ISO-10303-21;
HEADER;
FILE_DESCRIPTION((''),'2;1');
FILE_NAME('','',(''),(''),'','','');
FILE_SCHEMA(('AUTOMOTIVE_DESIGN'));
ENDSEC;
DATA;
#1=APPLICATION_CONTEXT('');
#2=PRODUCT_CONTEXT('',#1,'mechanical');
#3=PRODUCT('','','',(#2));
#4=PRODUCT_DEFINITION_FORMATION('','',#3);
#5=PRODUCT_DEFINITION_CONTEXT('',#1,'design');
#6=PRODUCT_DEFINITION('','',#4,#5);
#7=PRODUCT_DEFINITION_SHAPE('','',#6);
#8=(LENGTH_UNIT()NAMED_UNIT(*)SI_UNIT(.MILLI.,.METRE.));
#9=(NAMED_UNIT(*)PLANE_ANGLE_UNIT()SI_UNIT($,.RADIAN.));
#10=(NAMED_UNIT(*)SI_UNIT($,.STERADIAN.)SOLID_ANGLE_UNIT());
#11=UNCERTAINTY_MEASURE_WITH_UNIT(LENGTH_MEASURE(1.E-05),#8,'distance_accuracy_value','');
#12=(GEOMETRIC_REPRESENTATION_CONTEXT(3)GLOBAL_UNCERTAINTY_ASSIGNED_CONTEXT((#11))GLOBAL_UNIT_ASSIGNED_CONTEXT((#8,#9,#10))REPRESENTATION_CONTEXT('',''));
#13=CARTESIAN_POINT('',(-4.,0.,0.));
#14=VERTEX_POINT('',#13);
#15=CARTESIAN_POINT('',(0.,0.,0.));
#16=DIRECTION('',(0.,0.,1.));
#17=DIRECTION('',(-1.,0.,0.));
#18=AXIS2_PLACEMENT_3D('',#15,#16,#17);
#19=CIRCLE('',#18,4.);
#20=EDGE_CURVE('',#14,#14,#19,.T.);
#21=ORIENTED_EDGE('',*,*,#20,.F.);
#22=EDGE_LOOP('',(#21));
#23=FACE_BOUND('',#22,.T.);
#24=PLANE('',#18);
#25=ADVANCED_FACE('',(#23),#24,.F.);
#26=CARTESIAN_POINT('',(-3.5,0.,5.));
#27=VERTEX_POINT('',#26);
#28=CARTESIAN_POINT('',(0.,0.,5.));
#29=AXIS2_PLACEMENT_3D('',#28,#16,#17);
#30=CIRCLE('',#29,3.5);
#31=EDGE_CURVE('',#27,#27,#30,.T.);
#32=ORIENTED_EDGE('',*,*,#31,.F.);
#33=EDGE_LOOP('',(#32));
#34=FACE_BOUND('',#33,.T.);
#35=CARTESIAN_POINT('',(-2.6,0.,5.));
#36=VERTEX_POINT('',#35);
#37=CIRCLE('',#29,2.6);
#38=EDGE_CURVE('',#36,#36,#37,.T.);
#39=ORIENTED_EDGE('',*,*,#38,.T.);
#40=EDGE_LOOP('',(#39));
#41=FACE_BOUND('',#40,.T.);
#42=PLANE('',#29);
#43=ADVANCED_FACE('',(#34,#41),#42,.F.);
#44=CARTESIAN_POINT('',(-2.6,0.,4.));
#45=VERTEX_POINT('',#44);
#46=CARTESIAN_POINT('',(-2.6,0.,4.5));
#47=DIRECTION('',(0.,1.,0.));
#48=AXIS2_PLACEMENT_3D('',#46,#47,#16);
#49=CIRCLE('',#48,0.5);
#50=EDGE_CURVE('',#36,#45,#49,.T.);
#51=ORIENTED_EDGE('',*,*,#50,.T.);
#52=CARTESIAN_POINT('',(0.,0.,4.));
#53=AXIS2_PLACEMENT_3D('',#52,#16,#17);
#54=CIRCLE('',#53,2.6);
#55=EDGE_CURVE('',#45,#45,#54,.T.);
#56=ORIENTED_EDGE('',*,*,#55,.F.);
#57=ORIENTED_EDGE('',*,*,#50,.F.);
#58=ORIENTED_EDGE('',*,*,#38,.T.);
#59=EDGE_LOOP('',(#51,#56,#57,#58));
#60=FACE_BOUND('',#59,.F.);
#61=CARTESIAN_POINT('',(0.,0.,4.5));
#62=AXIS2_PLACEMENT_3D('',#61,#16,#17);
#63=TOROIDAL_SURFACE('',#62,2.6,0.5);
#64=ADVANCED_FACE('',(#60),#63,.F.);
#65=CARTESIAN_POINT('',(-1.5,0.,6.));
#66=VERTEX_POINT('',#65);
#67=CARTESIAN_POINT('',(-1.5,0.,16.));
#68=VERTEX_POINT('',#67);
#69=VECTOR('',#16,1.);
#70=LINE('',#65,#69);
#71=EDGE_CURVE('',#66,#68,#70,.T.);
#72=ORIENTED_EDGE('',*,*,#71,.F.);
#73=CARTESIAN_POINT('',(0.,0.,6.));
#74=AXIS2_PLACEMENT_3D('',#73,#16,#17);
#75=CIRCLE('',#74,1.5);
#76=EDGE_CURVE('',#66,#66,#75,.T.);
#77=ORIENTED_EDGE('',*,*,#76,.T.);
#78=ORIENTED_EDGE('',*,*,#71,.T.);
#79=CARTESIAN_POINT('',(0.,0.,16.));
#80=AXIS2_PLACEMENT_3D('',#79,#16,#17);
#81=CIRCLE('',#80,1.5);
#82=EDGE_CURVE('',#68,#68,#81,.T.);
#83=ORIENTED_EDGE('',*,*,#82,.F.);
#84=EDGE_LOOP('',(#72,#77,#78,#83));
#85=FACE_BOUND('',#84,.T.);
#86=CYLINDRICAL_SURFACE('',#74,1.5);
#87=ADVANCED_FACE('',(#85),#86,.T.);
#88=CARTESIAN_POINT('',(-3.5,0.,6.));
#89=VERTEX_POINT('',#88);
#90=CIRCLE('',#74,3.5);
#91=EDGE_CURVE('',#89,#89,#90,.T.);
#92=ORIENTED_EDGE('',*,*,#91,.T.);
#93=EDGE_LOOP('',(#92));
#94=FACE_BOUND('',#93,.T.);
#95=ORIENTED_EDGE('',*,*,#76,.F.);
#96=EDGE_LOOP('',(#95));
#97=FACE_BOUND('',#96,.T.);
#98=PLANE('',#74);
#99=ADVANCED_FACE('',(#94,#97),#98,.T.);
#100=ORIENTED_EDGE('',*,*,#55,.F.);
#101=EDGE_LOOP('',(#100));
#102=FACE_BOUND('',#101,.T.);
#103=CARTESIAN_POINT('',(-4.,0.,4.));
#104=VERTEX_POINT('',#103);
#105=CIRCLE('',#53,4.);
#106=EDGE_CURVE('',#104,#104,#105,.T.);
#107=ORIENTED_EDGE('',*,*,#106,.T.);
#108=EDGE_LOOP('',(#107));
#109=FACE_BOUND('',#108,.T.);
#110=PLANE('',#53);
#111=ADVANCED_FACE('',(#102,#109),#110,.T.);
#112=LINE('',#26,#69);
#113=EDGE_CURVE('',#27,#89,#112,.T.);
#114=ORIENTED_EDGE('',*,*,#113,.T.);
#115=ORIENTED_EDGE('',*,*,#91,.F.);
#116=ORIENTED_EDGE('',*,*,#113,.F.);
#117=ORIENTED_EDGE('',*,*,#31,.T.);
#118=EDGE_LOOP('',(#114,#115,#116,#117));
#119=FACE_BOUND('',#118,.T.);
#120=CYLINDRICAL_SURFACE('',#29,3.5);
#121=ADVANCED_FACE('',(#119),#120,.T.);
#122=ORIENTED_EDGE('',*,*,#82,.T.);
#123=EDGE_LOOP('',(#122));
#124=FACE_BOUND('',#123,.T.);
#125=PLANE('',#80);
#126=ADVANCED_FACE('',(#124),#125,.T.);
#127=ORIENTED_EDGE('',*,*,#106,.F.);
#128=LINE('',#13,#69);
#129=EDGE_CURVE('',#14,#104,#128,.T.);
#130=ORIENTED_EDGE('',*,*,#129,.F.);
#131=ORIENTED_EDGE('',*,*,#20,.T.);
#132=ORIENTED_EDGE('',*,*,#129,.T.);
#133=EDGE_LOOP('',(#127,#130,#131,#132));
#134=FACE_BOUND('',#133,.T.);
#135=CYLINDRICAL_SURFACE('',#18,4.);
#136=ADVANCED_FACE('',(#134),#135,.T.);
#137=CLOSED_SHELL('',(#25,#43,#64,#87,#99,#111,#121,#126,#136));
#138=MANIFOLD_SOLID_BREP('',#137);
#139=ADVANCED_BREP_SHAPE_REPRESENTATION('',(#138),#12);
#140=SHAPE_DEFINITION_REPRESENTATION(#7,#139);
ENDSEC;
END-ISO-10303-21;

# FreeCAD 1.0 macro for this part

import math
import FreeCAD as App
import Part
import Sketcher
from FreeCAD import Vector
Q = App.Units.Quantity

doc = App.newDocument("Part")
body = doc.addObject("PartDesign::Body", "Body")

sketch1 = doc.addObject("Sketcher::SketchObject", "Sketch")
body.addObject(sketch1)
sketch1.AttachmentSupport = (doc.XZ_Plane, [""])
sketch1.MapMode = "FlatFace"
sketch1.addGeometry(Part.LineSegment(Vector(0, 16, 0), Vector(0, 0, 0)), False)
sketch1.addGeometry(Part.LineSegment(Vector(0, 0, 0), Vector(-4, 0, 0)), False)
sketch1.addGeometry(Part.LineSegment(Vector(-4, 0, 0), Vector(-4, 4, 0)), False)
sketch1.addGeometry(Part.LineSegment(Vector(-4, 4, 0), Vector(-2.6, 4, 0)), False)
sketch1.addGeometry(Part.ArcOfCircle(Part.Circle(Vector(-2.6, 4.5, 0), Vector(0, 0, 1), 0.5), math.radians(-90), math.radians(90)), False)
sketch1.addGeometry(Part.LineSegment(Vector(-2.6, 5, 0), Vector(-3.5, 5, 0)), False)
sketch1.addGeometry(Part.LineSegment(Vector(-3.5, 5, 0), Vector(-3.5, 6, 0)), False)
sketch1.addGeometry(Part.LineSegment(Vector(-3.5, 6, 0), Vector(-1.5, 6, 0)), False)
sketch1.addGeometry(Part.LineSegment(Vector(-1.5, 6, 0), Vector(-1.5, 16, 0)), False)
sketch1.addGeometry(Part.LineSegment(Vector(-1.5, 16, 0), Vector(0, 16, 0)), False)
sketch1.addConstraint(Sketcher.Constraint("Coincident", 0, 2, 1, 1))
sketch1.addConstraint(Sketcher.Constraint("Coincident", 1, 2, 2, 1))
sketch1.addConstraint(Sketcher.Constraint("Coincident", 2, 2, 3, 1))
sketch1.addConstraint(Sketcher.Constraint("Tangent", 3, 2, 4, 1))
sketch1.addConstraint(Sketcher.Constraint("Tangent", 4, 2, 5, 1))
sketch1.addConstraint(Sketcher.Constraint("Coincident", 5, 2, 6, 1))
sketch1.addConstraint(Sketcher.Constraint("Coincident", 6, 2, 7, 1))
sketch1.addConstraint(Sketcher.Constraint("Coincident", 7, 2, 8, 1))
sketch1.addConstraint(Sketcher.Constraint("Coincident", 8, 2, 9, 1))
sketch1.addConstraint(Sketcher.Constraint("Coincident", 9, 2, 0, 1))
sketch1.addConstraint(Sketcher.Constraint("Vertical", 0))
sketch1.addConstraint(Sketcher.Constraint("Horizontal", 1))
sketch1.addConstraint(Sketcher.Constraint("Vertical", 2))
sketch1.addConstraint(Sketcher.Constraint("Horizontal", 3))
sketch1.addConstraint(Sketcher.Constraint("Horizontal", 5))
sketch1.addConstraint(Sketcher.Constraint("Vertical", 6))
sketch1.addConstraint(Sketcher.Constraint("Horizontal", 7))
sketch1.addConstraint(Sketcher.Constraint("Vertical", 8))
sketch1.addConstraint(Sketcher.Constraint("Horizontal", 9))
sketch1.addConstraint(Sketcher.Constraint("Coincident", 0, 2, -1, 1))
sketch1.addConstraint(Sketcher.Constraint("Equal", 1, 2))
sketch1.addConstraint(Sketcher.Constraint("Radius", 4, Q("0.5 mm")))
sketch1.addConstraint(Sketcher.Constraint("DistanceX", 1, 2, 1, 1, Q("4 mm")))
sketch1.addConstraint(Sketcher.Constraint("DistanceY", 6, 1, 6, 2, Q("1 mm")))
sketch1.addConstraint(Sketcher.Constraint("DistanceY", 8, 1, 8, 2, Q("10 mm")))
sketch1.addConstraint(Sketcher.Constraint("DistanceX", 7, 1, 7, 2, Q("2 mm")))
sketch1.addConstraint(Sketcher.Constraint("DistanceX", 3, 1, 3, 2, Q("1.4 mm")))
sketch1.addConstraint(Sketcher.Constraint("DistanceX", 5, 2, 5, 1, Q("0.9 mm")))
revolution = doc.addObject("PartDesign::Revolution", "Revolution")
body.addObject(revolution)
revolution.Profile = sketch1
revolution.ReferenceAxis = (sketch1, ["V_Axis"])
revolution.Angle = 360

doc.recompute()
